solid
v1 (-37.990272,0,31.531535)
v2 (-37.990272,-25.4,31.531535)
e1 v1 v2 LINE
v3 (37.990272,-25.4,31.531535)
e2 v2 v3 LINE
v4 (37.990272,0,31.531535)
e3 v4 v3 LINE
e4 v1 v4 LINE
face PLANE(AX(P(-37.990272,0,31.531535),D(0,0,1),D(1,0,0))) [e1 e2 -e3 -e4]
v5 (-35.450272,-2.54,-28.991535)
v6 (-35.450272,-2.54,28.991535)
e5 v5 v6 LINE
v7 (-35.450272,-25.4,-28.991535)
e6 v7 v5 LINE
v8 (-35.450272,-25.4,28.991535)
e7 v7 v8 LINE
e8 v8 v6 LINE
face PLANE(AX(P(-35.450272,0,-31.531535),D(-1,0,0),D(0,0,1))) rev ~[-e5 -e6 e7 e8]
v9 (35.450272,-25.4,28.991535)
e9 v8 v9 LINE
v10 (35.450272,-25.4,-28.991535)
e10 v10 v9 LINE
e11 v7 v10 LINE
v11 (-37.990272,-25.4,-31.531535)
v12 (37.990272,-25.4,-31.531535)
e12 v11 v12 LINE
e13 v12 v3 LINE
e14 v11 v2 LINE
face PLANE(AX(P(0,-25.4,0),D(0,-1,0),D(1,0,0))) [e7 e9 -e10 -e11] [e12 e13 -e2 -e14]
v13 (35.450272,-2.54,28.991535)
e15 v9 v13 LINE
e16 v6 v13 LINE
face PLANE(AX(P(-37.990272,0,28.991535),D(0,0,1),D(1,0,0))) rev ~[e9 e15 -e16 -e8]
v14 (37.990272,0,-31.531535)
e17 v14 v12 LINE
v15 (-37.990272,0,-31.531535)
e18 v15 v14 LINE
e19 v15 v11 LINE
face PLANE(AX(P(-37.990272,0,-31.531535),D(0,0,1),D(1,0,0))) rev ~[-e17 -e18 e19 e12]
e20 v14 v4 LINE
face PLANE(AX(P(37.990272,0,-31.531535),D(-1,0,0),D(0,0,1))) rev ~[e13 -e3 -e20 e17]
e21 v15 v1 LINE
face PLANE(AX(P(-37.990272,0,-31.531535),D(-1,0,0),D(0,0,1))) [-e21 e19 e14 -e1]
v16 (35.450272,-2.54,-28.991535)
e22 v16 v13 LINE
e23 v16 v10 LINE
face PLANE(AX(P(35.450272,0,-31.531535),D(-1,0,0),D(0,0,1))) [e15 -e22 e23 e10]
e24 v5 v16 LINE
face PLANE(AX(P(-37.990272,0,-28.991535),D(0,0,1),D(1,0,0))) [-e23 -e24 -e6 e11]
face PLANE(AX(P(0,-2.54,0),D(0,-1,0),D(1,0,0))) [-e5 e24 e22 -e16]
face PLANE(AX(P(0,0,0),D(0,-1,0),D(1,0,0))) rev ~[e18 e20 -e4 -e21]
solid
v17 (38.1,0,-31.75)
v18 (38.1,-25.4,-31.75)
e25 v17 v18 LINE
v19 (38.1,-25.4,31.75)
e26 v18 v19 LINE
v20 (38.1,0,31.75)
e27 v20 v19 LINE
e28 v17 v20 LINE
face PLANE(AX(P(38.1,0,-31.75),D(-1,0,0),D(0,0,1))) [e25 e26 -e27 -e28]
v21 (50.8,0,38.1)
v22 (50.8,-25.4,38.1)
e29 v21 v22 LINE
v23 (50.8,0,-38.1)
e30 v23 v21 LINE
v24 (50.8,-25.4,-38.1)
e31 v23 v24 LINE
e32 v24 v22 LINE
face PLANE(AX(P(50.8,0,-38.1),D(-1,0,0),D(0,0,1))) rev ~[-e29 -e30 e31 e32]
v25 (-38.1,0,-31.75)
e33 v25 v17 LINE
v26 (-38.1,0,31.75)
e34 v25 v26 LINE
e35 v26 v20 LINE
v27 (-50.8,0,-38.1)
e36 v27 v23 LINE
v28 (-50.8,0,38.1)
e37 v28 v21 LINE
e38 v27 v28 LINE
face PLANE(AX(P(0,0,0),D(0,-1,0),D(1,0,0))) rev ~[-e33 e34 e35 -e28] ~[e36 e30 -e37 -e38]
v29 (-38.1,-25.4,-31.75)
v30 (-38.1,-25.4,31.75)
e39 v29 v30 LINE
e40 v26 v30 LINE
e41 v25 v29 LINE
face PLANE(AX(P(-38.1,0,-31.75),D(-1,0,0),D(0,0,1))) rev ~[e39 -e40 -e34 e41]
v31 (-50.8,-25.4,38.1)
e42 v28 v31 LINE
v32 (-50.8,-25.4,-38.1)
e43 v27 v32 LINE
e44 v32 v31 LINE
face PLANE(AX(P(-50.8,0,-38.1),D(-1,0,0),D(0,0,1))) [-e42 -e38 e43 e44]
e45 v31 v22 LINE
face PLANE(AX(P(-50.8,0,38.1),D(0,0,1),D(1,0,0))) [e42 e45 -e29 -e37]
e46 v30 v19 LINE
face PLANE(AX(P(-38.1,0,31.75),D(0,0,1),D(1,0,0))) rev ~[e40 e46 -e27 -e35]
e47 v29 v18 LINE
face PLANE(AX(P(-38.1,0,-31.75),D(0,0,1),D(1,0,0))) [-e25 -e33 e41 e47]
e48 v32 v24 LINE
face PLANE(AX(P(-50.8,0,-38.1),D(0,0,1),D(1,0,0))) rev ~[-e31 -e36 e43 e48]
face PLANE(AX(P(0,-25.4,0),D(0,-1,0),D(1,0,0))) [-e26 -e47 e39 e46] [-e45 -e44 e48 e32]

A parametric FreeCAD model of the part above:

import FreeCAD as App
import Part
import Sketcher

V = App.Vector
Q = App.Units.Quantity


def faces_at(feature, points):
    """Names of the faces that lie closest to the given points."""
    faces = feature.Shape.Faces
    near = lambda p: min(range(len(faces)), key=lambda i: faces[i].distToShape(Part.Vertex(*p))[0])
    return sorted({f"Face{near(p) + 1}" for p in points})


def add_polygon(sketch, points):
    """Adds a closed chain of lines whose ends are joined by coincident constraints."""
    first, n = sketch.GeometryCount, len(points)
    for a, b in zip(points, points[1:] + points[:1]):
        sketch.addGeometry(Part.LineSegment(App.Vector(*a, 0), App.Vector(*b, 0)), False)
    for i in range(n):
        sketch.addConstraint(Sketcher.Constraint("Coincident", first + i, 2, first + (i + 1) % n, 1))

doc = App.newDocument("Part")
body = doc.addObject("PartDesign::Body", "Body")

sketch1 = body.newObject("Sketcher::SketchObject", "Sketch")
sketch1.AttachmentSupport = (doc.getObject("XZ_Plane"), [""])
sketch1.MapMode = "FlatFace"
add_polygon(sketch1, [(-51, 38), (-51, -38), (51, -38), (51, 38)])
add_polygon(sketch1, [(38, -32), (-38, -32), (-38, 32), (38, 32)])
sketch1.addConstraint([
    Sketcher.Constraint("Vertical", 0),
    Sketcher.Constraint("Horizontal", 1),
    Sketcher.Constraint("Vertical", 2),
    Sketcher.Constraint("Horizontal", 3),
    Sketcher.Constraint("Horizontal", 4),
    Sketcher.Constraint("Vertical", 5),
    Sketcher.Constraint("Horizontal", 6),
    Sketcher.Constraint("Vertical", 7),
    Sketcher.Constraint("Symmetric", 0, 2, 2, 2, -1, 1),
    Sketcher.Constraint("Symmetric", 4, 2, 6, 2, -1, 1),
    Sketcher.Constraint("Equal", 6, 0),
    Sketcher.Constraint("DistanceX", 1, 1, 1, 2, Q("4 in")),
    Sketcher.Constraint("DistanceX", 4, 2, 4, 1, Q("3 in")),
    Sketcher.Constraint("DistanceY", 5, 1, 5, 2, Q("2.5 in")),
])
pad1 = body.newObject("PartDesign::Pad", "Pad")
pad1.Profile = sketch1
pad1.Length = Q("1 in")
body2 = doc.addObject("PartDesign::Body", "Body001")

sketch2 = body2.newObject("Sketcher::SketchObject", "Sketch001")
sketch2.AttachmentSupport = (doc.getObject("XZ_Plane001"), [""])
sketch2.MapMode = "FlatFace"
add_polygon(sketch2, [(-38, 32), (-38, -32), (38, -32), (38, 32)])
sketch2.addConstraint([
    Sketcher.Constraint("Vertical", 0),
    Sketcher.Constraint("Horizontal", 1),
    Sketcher.Constraint("Vertical", 2),
    Sketcher.Constraint("Horizontal", 3),
    Sketcher.Constraint("Symmetric", 0, 2, 2, 2, -1, 1),
    Sketcher.Constraint("DistanceY", 0, 2, 0, 1, 63.06307),
    Sketcher.Constraint("DistanceX", 1, 1, 1, 2, 75.980544),
])
pad2 = body2.newObject("PartDesign::Pad", "Pad001")
pad2.Profile = sketch2
pad2.Length = Q("1 in")
doc.recompute()

thickness = body2.newObject("PartDesign::Thickness", "Thickness")
thickness.Base = (pad2, faces_at(pad2, [(0, -25.4, 0)]))
thickness.Value = Q("0.1 in")
thickness.Reversed = True
thickness.Join = "Arc"

doc.recompute()
